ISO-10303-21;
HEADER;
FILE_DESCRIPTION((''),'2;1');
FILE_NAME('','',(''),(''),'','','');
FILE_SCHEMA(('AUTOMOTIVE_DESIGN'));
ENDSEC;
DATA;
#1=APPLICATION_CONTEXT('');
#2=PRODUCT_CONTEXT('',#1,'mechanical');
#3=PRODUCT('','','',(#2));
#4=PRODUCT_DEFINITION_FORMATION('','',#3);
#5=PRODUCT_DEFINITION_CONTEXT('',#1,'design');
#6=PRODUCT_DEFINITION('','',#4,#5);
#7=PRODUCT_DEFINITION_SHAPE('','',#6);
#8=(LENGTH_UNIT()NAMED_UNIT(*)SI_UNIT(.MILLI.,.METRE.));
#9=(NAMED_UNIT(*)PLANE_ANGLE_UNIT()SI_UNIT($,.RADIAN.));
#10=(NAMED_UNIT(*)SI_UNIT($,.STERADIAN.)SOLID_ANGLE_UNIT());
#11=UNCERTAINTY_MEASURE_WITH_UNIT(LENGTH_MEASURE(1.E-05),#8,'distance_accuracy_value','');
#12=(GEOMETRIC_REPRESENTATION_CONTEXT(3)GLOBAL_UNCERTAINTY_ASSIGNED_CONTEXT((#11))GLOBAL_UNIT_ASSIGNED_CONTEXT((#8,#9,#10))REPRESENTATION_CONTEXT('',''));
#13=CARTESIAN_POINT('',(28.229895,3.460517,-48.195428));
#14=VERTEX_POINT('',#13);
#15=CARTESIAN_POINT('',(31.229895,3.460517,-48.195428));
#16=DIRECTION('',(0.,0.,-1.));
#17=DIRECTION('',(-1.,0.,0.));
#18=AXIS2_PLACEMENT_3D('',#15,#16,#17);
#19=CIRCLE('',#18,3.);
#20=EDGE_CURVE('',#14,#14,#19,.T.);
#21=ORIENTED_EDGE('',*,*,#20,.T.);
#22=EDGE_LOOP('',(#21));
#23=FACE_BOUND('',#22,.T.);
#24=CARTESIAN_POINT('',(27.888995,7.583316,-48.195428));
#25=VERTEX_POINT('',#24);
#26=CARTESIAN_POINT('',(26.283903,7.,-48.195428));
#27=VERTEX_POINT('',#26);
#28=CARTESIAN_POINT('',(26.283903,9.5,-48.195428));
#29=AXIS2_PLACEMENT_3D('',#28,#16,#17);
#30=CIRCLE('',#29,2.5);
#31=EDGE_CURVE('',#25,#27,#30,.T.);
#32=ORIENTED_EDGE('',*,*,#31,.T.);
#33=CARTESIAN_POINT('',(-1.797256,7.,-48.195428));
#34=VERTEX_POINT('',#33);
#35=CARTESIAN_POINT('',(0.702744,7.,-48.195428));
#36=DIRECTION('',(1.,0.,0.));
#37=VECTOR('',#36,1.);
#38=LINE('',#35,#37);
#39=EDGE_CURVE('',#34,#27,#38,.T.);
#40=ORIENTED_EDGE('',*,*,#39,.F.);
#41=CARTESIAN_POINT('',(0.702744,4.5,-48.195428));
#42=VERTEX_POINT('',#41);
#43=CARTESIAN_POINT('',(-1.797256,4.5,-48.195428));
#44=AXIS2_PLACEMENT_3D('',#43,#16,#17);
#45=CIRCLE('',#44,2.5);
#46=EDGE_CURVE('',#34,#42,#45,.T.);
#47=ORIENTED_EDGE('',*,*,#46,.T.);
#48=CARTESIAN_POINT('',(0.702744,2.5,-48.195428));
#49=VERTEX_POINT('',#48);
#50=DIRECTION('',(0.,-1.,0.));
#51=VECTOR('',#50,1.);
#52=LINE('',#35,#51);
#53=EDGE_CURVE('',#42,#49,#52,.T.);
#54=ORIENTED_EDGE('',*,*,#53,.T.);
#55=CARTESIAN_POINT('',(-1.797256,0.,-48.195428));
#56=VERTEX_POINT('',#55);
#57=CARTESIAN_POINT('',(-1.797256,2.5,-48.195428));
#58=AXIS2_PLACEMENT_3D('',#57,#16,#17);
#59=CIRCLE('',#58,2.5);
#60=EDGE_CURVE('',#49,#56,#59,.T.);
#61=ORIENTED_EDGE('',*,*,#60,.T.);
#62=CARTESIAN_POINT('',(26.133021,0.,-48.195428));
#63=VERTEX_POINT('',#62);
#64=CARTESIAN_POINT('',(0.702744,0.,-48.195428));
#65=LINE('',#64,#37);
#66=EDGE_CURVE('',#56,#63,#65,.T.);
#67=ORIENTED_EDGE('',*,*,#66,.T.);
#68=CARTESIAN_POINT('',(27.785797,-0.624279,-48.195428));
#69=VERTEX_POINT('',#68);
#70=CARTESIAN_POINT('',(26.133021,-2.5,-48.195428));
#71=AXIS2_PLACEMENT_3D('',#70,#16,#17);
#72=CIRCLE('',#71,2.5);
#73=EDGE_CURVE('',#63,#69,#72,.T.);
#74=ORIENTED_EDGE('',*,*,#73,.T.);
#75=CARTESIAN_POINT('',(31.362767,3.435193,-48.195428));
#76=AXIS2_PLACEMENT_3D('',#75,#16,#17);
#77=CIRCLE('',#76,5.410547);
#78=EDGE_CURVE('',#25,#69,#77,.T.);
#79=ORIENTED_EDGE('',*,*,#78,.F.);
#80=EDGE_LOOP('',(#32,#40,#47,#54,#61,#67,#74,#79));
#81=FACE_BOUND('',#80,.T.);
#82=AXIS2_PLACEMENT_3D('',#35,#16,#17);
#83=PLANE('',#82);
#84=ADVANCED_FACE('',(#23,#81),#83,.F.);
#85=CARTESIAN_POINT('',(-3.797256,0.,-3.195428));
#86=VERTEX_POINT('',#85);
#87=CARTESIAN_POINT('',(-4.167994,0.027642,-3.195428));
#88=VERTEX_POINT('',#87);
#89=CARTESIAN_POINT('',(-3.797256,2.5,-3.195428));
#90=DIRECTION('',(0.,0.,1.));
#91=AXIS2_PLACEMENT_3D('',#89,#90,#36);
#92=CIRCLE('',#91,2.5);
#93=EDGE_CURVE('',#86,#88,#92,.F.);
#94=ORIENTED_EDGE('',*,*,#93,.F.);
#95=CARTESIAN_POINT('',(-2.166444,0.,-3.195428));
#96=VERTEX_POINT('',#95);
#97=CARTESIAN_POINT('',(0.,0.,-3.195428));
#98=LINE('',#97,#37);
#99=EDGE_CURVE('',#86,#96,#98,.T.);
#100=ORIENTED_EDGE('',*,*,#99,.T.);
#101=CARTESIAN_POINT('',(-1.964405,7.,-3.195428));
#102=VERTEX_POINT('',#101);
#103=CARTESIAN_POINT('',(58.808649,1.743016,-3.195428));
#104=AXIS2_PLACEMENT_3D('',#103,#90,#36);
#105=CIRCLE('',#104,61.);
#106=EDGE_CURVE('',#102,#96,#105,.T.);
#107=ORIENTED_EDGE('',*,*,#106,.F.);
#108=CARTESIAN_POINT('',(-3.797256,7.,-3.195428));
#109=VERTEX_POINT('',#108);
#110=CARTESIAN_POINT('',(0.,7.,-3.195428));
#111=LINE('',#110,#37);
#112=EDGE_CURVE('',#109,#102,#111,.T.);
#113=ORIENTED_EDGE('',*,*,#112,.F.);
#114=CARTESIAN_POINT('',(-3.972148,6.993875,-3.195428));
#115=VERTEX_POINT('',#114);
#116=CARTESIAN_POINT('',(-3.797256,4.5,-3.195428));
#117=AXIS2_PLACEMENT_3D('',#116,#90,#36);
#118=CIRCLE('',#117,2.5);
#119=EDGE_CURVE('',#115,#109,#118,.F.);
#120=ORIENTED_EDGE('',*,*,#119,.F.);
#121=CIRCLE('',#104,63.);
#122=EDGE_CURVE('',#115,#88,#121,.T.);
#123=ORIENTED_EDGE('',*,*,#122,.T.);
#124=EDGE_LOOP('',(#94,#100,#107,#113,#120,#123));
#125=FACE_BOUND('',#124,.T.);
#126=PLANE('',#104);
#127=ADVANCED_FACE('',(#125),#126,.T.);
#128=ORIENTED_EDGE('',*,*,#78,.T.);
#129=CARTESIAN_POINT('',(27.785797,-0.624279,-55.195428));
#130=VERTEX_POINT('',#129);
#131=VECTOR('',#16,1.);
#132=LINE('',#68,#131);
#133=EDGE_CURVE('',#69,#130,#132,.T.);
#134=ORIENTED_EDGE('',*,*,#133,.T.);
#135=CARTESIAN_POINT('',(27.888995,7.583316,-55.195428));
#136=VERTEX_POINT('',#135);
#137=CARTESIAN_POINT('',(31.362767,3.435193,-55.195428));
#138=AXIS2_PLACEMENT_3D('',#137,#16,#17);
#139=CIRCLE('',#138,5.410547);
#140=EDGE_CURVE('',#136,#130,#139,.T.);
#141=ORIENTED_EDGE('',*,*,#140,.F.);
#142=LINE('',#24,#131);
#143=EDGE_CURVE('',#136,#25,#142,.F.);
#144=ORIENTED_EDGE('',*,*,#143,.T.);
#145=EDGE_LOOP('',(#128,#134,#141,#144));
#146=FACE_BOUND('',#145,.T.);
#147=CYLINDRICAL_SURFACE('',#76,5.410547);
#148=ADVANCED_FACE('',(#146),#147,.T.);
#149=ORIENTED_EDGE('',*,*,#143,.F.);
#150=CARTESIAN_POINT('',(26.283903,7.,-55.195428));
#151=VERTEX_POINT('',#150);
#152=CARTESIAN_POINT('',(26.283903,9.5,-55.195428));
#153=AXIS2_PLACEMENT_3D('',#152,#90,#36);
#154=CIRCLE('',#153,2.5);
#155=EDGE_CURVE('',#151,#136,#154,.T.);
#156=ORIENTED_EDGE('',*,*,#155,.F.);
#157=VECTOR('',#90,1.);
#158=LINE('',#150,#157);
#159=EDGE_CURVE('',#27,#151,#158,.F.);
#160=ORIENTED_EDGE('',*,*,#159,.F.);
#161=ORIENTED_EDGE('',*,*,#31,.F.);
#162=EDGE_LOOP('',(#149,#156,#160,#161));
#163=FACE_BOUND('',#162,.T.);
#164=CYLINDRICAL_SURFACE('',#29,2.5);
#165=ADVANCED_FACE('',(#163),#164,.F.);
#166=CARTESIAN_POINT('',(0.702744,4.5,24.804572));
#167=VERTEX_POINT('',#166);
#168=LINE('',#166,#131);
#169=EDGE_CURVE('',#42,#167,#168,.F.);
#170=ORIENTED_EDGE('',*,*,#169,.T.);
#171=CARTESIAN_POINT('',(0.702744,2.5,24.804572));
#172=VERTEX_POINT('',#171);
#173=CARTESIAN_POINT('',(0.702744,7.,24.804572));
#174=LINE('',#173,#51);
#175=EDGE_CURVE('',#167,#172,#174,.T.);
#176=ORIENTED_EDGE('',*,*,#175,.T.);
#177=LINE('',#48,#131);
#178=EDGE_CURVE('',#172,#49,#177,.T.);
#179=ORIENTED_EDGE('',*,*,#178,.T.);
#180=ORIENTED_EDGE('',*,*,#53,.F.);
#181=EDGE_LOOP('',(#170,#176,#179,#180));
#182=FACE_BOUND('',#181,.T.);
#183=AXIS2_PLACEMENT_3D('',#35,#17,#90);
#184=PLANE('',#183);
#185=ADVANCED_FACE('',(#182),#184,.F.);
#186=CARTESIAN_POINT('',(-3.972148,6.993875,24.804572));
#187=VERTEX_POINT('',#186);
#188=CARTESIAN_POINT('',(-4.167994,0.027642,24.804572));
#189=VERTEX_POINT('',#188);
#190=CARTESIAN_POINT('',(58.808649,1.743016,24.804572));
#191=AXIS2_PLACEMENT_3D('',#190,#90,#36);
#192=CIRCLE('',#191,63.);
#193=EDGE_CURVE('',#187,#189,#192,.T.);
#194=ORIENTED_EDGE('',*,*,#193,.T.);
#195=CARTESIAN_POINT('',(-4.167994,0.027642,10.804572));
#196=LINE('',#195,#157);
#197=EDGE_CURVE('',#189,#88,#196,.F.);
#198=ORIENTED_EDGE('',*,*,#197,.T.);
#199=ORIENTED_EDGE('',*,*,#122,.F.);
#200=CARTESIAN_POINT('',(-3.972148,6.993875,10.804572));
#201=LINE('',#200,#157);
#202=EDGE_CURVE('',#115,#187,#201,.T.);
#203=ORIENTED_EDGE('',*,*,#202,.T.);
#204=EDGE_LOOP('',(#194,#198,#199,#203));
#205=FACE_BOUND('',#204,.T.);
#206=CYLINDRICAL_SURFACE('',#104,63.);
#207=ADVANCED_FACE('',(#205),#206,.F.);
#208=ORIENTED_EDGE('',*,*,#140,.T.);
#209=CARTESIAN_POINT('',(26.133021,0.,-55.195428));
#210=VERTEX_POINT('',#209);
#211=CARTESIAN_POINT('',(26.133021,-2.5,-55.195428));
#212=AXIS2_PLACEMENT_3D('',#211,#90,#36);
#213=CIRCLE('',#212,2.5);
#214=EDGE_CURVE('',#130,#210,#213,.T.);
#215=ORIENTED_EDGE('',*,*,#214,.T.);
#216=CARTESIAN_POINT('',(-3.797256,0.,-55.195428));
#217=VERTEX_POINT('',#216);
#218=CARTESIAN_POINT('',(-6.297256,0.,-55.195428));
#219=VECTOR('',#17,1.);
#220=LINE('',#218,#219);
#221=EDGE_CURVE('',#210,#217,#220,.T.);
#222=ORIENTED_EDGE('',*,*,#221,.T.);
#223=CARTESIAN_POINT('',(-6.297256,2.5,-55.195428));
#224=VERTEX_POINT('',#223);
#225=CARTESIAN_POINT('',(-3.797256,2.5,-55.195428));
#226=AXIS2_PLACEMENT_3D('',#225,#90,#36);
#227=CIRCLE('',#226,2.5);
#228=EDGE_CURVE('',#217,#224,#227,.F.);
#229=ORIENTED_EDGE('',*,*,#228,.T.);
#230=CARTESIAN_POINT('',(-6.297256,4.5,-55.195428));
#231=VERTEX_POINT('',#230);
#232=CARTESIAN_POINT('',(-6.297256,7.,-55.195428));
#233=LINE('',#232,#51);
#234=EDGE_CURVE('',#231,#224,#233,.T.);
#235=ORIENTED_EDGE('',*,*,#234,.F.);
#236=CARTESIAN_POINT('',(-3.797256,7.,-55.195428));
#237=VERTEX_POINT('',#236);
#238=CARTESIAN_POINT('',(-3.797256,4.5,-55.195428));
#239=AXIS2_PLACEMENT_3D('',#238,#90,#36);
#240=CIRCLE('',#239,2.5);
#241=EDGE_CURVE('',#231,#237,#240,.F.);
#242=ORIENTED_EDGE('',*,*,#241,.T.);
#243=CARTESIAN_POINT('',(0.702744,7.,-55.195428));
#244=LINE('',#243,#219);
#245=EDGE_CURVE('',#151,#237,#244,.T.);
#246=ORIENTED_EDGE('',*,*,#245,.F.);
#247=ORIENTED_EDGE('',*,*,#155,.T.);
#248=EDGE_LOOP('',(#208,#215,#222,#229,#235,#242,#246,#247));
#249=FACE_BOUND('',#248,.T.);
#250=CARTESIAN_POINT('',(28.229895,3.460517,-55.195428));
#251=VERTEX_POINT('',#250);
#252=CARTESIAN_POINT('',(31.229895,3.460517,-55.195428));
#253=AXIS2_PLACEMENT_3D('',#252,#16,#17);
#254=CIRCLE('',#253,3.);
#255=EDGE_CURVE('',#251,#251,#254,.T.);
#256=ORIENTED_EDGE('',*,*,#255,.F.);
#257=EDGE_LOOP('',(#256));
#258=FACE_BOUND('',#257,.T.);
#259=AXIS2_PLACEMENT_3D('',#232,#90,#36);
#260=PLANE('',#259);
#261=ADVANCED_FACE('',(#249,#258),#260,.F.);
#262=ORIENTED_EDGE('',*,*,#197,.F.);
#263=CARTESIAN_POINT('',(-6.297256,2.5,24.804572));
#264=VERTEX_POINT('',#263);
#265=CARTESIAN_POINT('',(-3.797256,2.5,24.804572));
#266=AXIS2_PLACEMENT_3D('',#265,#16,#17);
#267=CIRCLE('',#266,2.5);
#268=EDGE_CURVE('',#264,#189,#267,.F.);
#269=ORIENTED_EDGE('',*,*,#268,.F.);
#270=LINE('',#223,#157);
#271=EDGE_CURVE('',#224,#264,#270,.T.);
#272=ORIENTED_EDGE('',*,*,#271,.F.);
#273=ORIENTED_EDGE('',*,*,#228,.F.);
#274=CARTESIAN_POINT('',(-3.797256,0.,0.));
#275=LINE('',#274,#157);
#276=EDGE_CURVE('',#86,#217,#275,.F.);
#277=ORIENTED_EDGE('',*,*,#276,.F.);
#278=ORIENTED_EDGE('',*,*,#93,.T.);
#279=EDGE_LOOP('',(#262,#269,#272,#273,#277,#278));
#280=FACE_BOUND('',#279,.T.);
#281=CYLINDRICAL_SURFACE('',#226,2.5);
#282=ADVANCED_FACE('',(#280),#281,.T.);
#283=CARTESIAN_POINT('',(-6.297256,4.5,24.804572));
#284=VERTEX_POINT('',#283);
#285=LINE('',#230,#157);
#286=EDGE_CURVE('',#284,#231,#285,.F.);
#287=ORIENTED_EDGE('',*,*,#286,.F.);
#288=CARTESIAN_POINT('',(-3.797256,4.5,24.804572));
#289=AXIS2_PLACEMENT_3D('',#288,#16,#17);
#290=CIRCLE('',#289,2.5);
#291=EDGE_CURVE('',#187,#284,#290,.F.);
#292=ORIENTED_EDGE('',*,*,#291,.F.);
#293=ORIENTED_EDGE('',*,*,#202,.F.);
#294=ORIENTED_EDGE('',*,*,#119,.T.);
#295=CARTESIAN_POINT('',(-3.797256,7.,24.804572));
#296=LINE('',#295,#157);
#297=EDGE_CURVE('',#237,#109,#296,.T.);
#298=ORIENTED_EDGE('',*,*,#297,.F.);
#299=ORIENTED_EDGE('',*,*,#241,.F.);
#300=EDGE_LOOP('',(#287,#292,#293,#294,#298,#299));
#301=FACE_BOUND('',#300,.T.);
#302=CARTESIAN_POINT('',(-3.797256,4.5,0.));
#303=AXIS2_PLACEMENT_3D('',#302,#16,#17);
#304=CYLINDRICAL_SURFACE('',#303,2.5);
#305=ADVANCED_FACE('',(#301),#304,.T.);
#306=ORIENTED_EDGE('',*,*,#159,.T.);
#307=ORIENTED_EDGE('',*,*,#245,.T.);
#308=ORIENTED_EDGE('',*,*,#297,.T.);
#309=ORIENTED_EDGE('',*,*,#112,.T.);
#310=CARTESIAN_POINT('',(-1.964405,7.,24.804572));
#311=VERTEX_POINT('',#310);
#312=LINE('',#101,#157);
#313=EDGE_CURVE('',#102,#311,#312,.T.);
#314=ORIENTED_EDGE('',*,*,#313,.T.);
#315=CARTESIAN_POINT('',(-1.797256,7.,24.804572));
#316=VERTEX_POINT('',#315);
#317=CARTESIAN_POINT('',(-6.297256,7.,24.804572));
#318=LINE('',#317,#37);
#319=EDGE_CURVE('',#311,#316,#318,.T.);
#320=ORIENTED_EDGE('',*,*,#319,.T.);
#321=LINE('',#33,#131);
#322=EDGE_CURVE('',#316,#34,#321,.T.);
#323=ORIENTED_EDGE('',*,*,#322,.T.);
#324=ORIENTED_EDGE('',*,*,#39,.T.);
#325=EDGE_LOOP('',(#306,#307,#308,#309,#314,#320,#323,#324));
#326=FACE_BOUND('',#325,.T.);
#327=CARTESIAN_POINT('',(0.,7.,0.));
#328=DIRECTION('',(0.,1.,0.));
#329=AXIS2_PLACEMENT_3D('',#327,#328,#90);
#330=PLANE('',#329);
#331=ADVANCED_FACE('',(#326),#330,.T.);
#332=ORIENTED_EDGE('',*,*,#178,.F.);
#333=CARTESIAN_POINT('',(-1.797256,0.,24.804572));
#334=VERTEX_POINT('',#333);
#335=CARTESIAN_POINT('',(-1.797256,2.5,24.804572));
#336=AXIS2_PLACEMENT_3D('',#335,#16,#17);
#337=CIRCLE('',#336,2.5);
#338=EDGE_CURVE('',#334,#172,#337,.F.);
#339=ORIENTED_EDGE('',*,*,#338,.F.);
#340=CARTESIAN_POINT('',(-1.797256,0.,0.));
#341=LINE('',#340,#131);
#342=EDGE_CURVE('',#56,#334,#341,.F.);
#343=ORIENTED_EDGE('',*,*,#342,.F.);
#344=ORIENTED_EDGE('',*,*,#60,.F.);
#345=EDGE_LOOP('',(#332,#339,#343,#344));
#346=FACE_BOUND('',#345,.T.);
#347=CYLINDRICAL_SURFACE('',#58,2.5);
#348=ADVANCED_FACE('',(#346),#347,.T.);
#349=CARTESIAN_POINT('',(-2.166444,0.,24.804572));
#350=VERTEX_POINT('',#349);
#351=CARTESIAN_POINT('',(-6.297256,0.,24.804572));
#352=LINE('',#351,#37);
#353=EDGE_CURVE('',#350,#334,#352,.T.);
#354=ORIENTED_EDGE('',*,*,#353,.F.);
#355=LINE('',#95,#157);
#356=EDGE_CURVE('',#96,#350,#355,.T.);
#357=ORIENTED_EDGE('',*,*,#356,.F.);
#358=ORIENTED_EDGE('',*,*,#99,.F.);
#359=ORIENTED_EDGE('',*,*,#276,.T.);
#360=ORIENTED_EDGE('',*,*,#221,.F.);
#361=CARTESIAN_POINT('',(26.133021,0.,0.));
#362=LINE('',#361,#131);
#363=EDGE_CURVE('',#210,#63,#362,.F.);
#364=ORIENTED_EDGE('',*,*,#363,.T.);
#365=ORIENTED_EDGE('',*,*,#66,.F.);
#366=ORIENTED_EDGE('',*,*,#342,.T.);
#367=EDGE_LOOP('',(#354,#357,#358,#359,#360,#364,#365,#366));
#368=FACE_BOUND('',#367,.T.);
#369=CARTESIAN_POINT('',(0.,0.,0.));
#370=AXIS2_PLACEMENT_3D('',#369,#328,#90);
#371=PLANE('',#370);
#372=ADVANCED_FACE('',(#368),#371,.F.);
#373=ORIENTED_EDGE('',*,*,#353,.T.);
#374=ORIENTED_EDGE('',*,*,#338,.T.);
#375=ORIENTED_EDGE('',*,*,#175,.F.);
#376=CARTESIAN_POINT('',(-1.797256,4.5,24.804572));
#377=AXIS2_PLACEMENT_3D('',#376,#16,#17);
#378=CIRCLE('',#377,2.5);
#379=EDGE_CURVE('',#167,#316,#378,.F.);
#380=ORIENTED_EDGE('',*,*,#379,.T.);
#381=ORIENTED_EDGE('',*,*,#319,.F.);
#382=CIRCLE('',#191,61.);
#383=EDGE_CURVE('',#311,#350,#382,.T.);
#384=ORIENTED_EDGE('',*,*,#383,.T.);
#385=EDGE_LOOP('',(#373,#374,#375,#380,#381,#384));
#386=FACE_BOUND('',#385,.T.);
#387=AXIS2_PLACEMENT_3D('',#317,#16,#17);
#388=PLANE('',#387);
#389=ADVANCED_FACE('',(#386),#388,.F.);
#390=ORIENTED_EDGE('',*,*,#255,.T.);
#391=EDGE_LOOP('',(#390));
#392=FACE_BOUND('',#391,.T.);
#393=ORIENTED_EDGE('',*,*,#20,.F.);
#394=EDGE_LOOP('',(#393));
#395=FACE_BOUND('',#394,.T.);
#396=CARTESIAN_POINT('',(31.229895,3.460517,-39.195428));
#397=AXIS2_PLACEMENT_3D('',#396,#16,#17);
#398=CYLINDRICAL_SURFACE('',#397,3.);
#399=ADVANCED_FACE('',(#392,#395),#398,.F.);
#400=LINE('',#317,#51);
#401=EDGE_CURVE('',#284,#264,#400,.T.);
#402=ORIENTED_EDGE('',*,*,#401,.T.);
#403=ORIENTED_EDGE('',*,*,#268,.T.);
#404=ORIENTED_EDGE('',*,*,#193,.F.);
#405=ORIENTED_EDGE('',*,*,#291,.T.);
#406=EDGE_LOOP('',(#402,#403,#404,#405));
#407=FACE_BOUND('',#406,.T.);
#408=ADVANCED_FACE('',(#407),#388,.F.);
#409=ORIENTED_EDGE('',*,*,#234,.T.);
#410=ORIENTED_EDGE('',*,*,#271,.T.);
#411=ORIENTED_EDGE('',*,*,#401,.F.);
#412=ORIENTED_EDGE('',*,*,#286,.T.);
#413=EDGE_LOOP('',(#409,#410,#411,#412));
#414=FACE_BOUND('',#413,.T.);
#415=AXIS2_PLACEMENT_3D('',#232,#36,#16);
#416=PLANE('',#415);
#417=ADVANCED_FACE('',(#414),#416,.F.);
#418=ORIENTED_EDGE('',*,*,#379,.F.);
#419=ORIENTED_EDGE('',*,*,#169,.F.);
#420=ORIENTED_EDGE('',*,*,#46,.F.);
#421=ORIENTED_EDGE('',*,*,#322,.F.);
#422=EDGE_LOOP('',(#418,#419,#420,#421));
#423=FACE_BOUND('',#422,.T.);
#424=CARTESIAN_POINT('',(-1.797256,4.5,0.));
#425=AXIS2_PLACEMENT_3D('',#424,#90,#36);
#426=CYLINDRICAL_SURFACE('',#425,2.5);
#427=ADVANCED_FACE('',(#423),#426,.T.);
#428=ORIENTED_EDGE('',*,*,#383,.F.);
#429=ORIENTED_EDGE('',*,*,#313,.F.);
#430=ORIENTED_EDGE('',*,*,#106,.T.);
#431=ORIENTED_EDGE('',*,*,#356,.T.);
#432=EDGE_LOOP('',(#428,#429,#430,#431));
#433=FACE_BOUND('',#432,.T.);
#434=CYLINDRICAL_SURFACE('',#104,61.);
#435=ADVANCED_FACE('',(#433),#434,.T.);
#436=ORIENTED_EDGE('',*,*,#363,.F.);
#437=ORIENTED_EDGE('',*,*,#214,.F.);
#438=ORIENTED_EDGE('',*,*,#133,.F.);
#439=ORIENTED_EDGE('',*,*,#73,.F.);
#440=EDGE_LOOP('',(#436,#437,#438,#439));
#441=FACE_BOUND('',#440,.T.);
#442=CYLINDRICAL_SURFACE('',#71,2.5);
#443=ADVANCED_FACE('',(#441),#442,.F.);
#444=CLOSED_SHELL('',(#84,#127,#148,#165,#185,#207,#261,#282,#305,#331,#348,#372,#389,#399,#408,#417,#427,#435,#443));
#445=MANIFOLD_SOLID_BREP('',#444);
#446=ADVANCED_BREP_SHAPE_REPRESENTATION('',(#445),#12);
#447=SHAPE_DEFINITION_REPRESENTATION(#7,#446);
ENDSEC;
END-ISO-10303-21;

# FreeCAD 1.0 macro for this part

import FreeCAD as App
import Part
import Sketcher


def edges_at(feature, points):
    """Names of the edges that pass closest to the given points."""
    edges = feature.Shape.Edges
    near = lambda p: min(range(len(edges)), key=lambda i: edges[i].distToShape(Part.Vertex(*p))[0])
    return sorted({f"Edge{near(p) + 1}" for p in points})


def add_polygon(sketch, points):
    """Adds a closed chain of lines whose ends are joined by coincident constraints."""
    first, n = sketch.GeometryCount, len(points)
    for a, b in zip(points, points[1:] + points[:1]):
        sketch.addGeometry(Part.LineSegment(App.Vector(*a, 0), App.Vector(*b, 0)), False)
    for i in range(n):
        sketch.addConstraint(Sketcher.Constraint("Coincident", first + i, 2, first + (i + 1) % n, 1))

doc = App.newDocument("Part")
body = doc.addObject("PartDesign::Body", "Body")

# Sketch on XZ plane
sketch1 = body.newObject("Sketcher::SketchObject", "Sketch")
sketch1.AttachmentSupport = (doc.getObject("XZ_Plane"), [""])
sketch1.MapMode = "FlatFace"
add_polygon(sketch1, [(34, -55), (-6, -55), (-6, 25), (1, 25), (1, -48), (34, -48)])  # lines 0-5
sketch1.addConstraint([
    Sketcher.Constraint("Horizontal", 0),
    Sketcher.Constraint("Vertical", 1),
    Sketcher.Constraint("Horizontal", 2),
    Sketcher.Constraint("Vertical", 3),
    Sketcher.Constraint("Horizontal", 4),
    Sketcher.Constraint("Vertical", 5),
    Sketcher.Constraint("Equal", 2, 5),
    Sketcher.Constraint("DistanceX", 0, 2, 0, 1, 40.0),
    Sketcher.Constraint("DistanceX", 2, 1, 2, 2, 7.0),
    Sketcher.Constraint("DistanceY", 1, 1, 1, 2, 80.0),
    Sketcher.Constraint("DistanceY", 0, 2, -1, 1, 55.195428),
    Sketcher.Constraint("DistanceX", 0, 2, -1, 1, 6.297256),
])
pad1 = body.newObject("PartDesign::Pad", "Pad")
pad1.Profile = sketch1
pad1.Length = 7
pad1.Reversed = True
doc.recompute()

fillet = body.newObject("PartDesign::Fillet", "Fillet")
fillet.Base = (pad1, edges_at(pad1, [
    (-6.297, 7, -15.195),
    (0.703, 7, -11.695),
    (-6.297, 0, -15.195),
    (0.703, 0, -11.695),
]))
fillet.Radius = 2.5

# Sketch on XY plane
sketch2 = body.newObject("Sketcher::SketchObject", "Sketch001")
sketch2.AttachmentSupport = (doc.getObject("XY_Plane"), [""])
sketch2.MapMode = "FlatFace"
sketch2.AttachmentOffset = App.Placement(App.Vector(0, 0, -55.195428), App.Rotation())
sketch2.addGeometry(Part.Circle(App.Vector(31, 3, 0), App.Vector(0, 0, 1), 5), False)
sketch2.addConstraint([
    Sketcher.Constraint("Diameter", 0, 10.821093),
    Sketcher.Constraint("DistanceX", -1, 1, 0, 3, 31.362767),
    Sketcher.Constraint("DistanceY", -1, 1, 0, 3, 3.435193),
])
pad2 = body.newObject("PartDesign::Pad", "Pad001")
pad2.Profile = sketch2
pad2.Length = 7
doc.recompute()

fillet2 = body.newObject("PartDesign::Fillet", "Fillet001")
fillet2.Base = (pad2, edges_at(pad2, [(27.183, 0, -51.695), (27.293, 7, -51.695)]))
fillet2.Radius = 2.5

# Sketch on XY plane
sketch3 = body.newObject("Sketcher::SketchObject", "Sketch002")
sketch3.AttachmentSupport = (doc.getObject("XY_Plane"), [""])
sketch3.MapMode = "FlatFace"
sketch3.AttachmentOffset = App.Placement(App.Vector(0, 0, -55.195428), App.Rotation())
sketch3.addGeometry(Part.Circle(App.Vector(31.2, 3.5, 0), App.Vector(0, 0, 1), 3), False)
sketch3.addConstraint([
    Sketcher.Constraint("Diameter", 0, 6.0),
    Sketcher.Constraint("DistanceX", -1, 1, 0, 3, 31.229895),
    Sketcher.Constraint("DistanceY", -1, 1, 0, 3, 3.460517),
])
pocket1 = body.newObject("PartDesign::Pocket", "Pocket")
pocket1.Profile = sketch3
pocket1.Length = 16
pocket1.Reversed = True

# Sketch on XY plane
sketch4 = body.newObject("Sketcher::SketchObject", "Sketch003")
sketch4.AttachmentSupport = (doc.getObject("XY_Plane"), [""])
sketch4.MapMode = "FlatFace"
sketch4.AttachmentOffset = App.Placement(App.Vector(0, 0, 24.804572), App.Rotation())
sketch4.addGeometry([
    Part.Circle(App.Vector(59, 2, 0), App.Vector(0, 0, 1), 63),
    Part.Circle(App.Vector(59, 2, 0), App.Vector(0, 0, 1), 61),
], False)
sketch4.addConstraint([
    Sketcher.Constraint("Coincident", 1, 3, 0, 3),
    Sketcher.Constraint("Diameter", 0, 126.0),
    Sketcher.Constraint("Diameter", 1, 122.0),
    Sketcher.Constraint("DistanceX", -1, 1, 0, 3, 58.808649),
    Sketcher.Constraint("DistanceY", -1, 1, 0, 3, 1.743016),
])
pocket2 = body.newObject("PartDesign::Pocket", "Pocket001")
pocket2.Profile = sketch4
pocket2.Length = 28

doc.recompute()
